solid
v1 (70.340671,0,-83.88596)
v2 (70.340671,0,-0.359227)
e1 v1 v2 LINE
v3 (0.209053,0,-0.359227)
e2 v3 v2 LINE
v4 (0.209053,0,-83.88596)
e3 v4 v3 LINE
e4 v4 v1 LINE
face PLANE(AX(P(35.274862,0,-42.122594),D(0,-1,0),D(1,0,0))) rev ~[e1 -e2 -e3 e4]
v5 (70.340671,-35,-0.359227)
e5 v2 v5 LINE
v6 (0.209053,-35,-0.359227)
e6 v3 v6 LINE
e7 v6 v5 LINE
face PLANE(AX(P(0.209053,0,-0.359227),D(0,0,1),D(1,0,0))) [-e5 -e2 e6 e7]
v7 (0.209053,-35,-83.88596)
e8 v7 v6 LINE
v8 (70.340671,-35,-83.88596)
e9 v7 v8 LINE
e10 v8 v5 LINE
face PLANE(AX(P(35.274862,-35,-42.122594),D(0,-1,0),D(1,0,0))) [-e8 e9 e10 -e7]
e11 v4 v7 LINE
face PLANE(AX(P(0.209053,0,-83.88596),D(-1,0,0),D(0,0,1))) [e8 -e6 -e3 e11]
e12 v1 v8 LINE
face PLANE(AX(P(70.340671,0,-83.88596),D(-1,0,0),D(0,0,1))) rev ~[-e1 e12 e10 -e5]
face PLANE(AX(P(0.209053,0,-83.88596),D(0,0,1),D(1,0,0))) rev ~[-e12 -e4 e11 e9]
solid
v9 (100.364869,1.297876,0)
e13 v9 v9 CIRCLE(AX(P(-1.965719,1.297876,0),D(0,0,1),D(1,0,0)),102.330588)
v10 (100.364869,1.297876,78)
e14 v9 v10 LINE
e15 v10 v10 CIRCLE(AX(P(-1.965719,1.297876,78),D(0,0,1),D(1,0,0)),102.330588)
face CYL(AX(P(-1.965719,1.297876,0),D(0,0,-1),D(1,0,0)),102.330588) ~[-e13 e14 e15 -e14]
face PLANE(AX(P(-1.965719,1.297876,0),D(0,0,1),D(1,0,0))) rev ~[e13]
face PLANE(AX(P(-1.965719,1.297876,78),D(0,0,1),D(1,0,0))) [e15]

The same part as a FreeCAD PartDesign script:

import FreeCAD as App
import Part
import Sketcher


def add_polygon(sketch, points):
    """Adds a closed chain of lines whose ends are joined by coincident constraints."""
    first, n = sketch.GeometryCount, len(points)
    for a, b in zip(points, points[1:] + points[:1]):
        sketch.addGeometry(Part.LineSegment(App.Vector(*a, 0), App.Vector(*b, 0)), False)
    for i in range(n):
        sketch.addConstraint(Sketcher.Constraint("Coincident", first + i, 2, first + (i + 1) % n, 1))

doc = App.newDocument("Part")
params = doc.addObject("Spreadsheet::Sheet", "Params")
for row, (alias, value) in enumerate([
    ("pad1_length", "78 mm"),
    ("pad2_length", "35 mm"),
], start=1):
    params.set(f"A{row}", alias)
    params.set(f"B{row}", "=" + value)
    params.setAlias(f"B{row}", alias)

body = doc.addObject("PartDesign::Body", "Body")

sketch1 = doc.addObject("Sketcher::SketchObject", "Sketch")
body.addObject(sketch1)
sketch1.AttachmentSupport = (doc.XY_Plane, [""])
sketch1.MapMode = "FlatFace"
sketch1.addGeometry(Part.Circle(App.Vector(-2, 1, 0), App.Vector(0, 0, 1), 102), False)
sketch1.addConstraint([
    Sketcher.Constraint("Diameter", 0, 204.661176),
    Sketcher.Constraint("DistanceX", 0, 3, -1, 1, 1.965719),
    Sketcher.Constraint("DistanceY", -1, 1, 0, 3, 1.297876),
])
pad1 = doc.addObject("PartDesign::Pad", "Pad")
body.addObject(pad1)
pad1.Profile = sketch1
pad1.setExpression("Length", "Params.pad1_length")
body2 = doc.addObject("PartDesign::Body", "Body001")

sketch2 = doc.addObject("Sketcher::SketchObject", "Sketch001")
body2.addObject(sketch2)
sketch2.AttachmentSupport = (doc.getObject("XZ_Plane001"), [""])
sketch2.MapMode = "FlatFace"
add_polygon(sketch2, [(0, 0), (0, -84), (70, -84), (70, 0)])
sketch2.addConstraint([
    Sketcher.Constraint("Vertical", 0),
    Sketcher.Constraint("Horizontal", 1),
    Sketcher.Constraint("Vertical", 2),
    Sketcher.Constraint("Horizontal", 3),
    Sketcher.Constraint("DistanceX", 1, 1, 1, 2, 70.131618),
    Sketcher.Constraint("DistanceY", 0, 2, 0, 1, 83.526733),
    Sketcher.Constraint("DistanceY", 0, 2, -1, 1, 83.88596),
    Sketcher.Constraint("DistanceX", -1, 1, 1, 2, 70.340671),
])
pad2 = doc.addObject("PartDesign::Pad", "Pad001")
body2.addObject(pad2)
pad2.Profile = sketch2
pad2.setExpression("Length", "Params.pad2_length")

doc.recompute()
